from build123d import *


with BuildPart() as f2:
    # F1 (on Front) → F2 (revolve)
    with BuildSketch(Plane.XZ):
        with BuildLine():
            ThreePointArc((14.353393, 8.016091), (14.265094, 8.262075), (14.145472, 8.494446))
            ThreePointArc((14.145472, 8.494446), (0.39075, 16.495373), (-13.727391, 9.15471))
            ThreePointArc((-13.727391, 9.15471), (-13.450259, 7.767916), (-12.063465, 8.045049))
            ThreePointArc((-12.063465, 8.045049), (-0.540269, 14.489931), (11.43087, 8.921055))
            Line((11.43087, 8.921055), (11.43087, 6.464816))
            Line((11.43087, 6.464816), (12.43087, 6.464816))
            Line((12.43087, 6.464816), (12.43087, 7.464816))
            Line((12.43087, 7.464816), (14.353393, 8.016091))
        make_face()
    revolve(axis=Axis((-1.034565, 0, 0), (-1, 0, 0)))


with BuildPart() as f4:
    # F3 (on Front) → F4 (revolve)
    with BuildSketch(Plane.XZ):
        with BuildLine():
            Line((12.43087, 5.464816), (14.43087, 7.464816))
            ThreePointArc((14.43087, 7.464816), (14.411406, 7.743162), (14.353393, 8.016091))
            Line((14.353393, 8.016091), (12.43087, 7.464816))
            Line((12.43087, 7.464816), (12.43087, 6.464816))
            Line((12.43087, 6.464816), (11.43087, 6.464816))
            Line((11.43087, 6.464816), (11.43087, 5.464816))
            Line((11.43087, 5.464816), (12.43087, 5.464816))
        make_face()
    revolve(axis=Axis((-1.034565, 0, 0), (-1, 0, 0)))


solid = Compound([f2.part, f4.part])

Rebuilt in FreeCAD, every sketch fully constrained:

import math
import FreeCAD as App
import Part
import Sketcher
from FreeCAD import Vector
Q = App.Units.Quantity

doc = App.newDocument("Part")
body = doc.addObject("PartDesign::Body", "Body")

# Sketch on XZ plane
sketch1 = body.newObject("Sketcher::SketchObject", "Sketch")
sketch1.AttachmentSupport = (doc.getObject("XZ_Plane"), [""])
sketch1.MapMode = "FlatFace"
sketch1.addGeometry([
    Part.ArcOfCircle(Part.Circle(Vector(12.430903, 7.464829, 0), Vector(0, 0, 1), 1.999964), math.radians(15.999902), math.radians(30.985255)),  # 0
    Part.ArcOfCircle(Part.Circle(Vector(0, 0.000002, 0), Vector(0, 0, 1), 16.499998), math.radians(30.985079), math.radians(146.300936)),  # 1
    Part.ArcOfCircle(Part.Circle(Vector(-12.895428, 8.599879, 0), Vector(0, 0, 1), 1), math.radians(146.300906), math.radians(326.300986)),  # 2
    Part.ArcOfCircle(Part.Circle(Vector(0, -0.000001, 0), Vector(0, 0, 1), 14.500001), math.radians(37.96974), math.radians(146.300924)),  # 3
    Part.LineSegment(Vector(11.43087, 8.921055, 0), Vector(11.43087, 6.464816, 0)),  # 4
    Part.LineSegment(Vector(11.43087, 6.464816, 0), Vector(12.43087, 6.464816, 0)),  # 5
    Part.LineSegment(Vector(12.43087, 6.464816, 0), Vector(12.43087, 7.464816, 0)),  # 6
    Part.LineSegment(Vector(12.43087, 7.464816, 0), Vector(14.353393, 8.016091, 0)),  # 7
], False)
sketch1.addConstraint([
    Sketcher.Constraint("Coincident", 0, 2, 1, 1),
    Sketcher.Constraint("Tangent", 1, 2, 2, 1),
    Sketcher.Constraint("Tangent", 2, 2, 3, 2),
    Sketcher.Constraint("Coincident", 3, 1, 4, 1),
    Sketcher.Constraint("Coincident", 4, 2, 5, 1),
    Sketcher.Constraint("Coincident", 5, 2, 6, 1),
    Sketcher.Constraint("Coincident", 6, 2, 7, 1),
    Sketcher.Constraint("Coincident", 7, 2, 0, 1),
    Sketcher.Constraint("Vertical", 4),
    Sketcher.Constraint("Horizontal", 5),
    Sketcher.Constraint("Vertical", 6),
    Sketcher.Constraint("Coincident", 1, 3, -1, 1),
    Sketcher.Constraint("Coincident", 3, 3, -1, 1),
    Sketcher.Constraint("Equal", 5, 6),
    Sketcher.Constraint("Radius", 2, 1.0),
    Sketcher.Constraint("Radius", 1, 16.499998),
    Sketcher.Constraint("DistanceX", 5, 1, 5, 2, 1.0),
    Sketcher.Constraint("Angle", 7, Q("16.000011 deg")),
    Sketcher.Constraint("Distance", 7, 2.0),
    Sketcher.Constraint("Radius", 0, 1.999964),
    Sketcher.Constraint("DistanceY", 4, 2, 4, 1, 2.456239),
    Sketcher.Constraint("DistanceX", 2, 3, 0, 2, 27.0409),
    Sketcher.Constraint("DistanceX", 3, 1, 0, 2, 2.714602),
    Sketcher.Constraint("DistanceY", -1, 1, 0, 3, 7.464829),
])
revolution = body.newObject("PartDesign::Revolution", "Revolution")
revolution.Profile = sketch1
revolution.ReferenceAxis = (sketch1, ["H_Axis"])
revolution.Angle = 360
body2 = doc.addObject("PartDesign::Body", "Body001")

# Sketch on XZ plane
sketch2 = body2.newObject("Sketcher::SketchObject", "Sketch001")
sketch2.AttachmentSupport = (doc.getObject("XZ_Plane001"), [""])
sketch2.MapMode = "FlatFace"
sketch2.addGeometry([
    Part.LineSegment(Vector(12.43087, 5.464816, 0), Vector(14.43087, 7.464816, 0)),  # 0
    Part.ArcOfCircle(Part.Circle(Vector(12.430869, 7.464815, 0), Vector(0, 0, 1), 2.000001), math.radians(0.000037), math.radians(16.000035)),  # 1
    Part.LineSegment(Vector(14.353393, 8.016091, 0), Vector(12.43087, 7.464816, 0)),  # 2
    Part.LineSegment(Vector(12.43087, 7.464816, 0), Vector(12.43087, 6.464816, 0)),  # 3
    Part.LineSegment(Vector(12.43087, 6.464816, 0), Vector(11.43087, 6.464816, 0)),  # 4
    Part.LineSegment(Vector(11.43087, 6.464816, 0), Vector(11.43087, 5.464816, 0)),  # 5
    Part.LineSegment(Vector(11.43087, 5.464816, 0), Vector(12.43087, 5.464816, 0)),  # 6
], False)
sketch2.addConstraint([
    Sketcher.Constraint("Coincident", 0, 2, 1, 1),
    Sketcher.Constraint("Coincident", 1, 2, 2, 1),
    Sketcher.Constraint("Coincident", 2, 2, 3, 1),
    Sketcher.Constraint("Coincident", 3, 2, 4, 1),
    Sketcher.Constraint("Coincident", 4, 2, 5, 1),
    Sketcher.Constraint("Coincident", 5, 2, 6, 1),
    Sketcher.Constraint("Coincident", 6, 2, 0, 1),
    Sketcher.Constraint("Vertical", 3),
    Sketcher.Constraint("Horizontal", 4),
    Sketcher.Constraint("Vertical", 5),
    Sketcher.Constraint("Horizontal", 6),
    Sketcher.Constraint("Coincident", 2, 2, 1, 3),
    Sketcher.Constraint("Horizontal", 1, 3, 0, 2),
    Sketcher.Constraint("Vertical", 3, 2, 6, 2),
    Sketcher.Constraint("Equal", 6, 3),
    Sketcher.Constraint("Equal", 3, 5),
    Sketcher.Constraint("Radius", 1, 2.000001),
    Sketcher.Constraint("DistanceX", 4, 2, 4, 1, 1.0),
    Sketcher.Constraint("Angle", 2, Q("-163.999989 deg")),
    Sketcher.Constraint("DistanceX", -1, 1, 1, 3, 12.430869),
    Sketcher.Constraint("DistanceY", -1, 1, 1, 2, 8.016091),
])
revolution2 = body2.newObject("PartDesign::Revolution", "Revolution001")
revolution2.Profile = sketch2
revolution2.ReferenceAxis = (sketch2, ["H_Axis"])
revolution2.Angle = 360

doc.recompute()
